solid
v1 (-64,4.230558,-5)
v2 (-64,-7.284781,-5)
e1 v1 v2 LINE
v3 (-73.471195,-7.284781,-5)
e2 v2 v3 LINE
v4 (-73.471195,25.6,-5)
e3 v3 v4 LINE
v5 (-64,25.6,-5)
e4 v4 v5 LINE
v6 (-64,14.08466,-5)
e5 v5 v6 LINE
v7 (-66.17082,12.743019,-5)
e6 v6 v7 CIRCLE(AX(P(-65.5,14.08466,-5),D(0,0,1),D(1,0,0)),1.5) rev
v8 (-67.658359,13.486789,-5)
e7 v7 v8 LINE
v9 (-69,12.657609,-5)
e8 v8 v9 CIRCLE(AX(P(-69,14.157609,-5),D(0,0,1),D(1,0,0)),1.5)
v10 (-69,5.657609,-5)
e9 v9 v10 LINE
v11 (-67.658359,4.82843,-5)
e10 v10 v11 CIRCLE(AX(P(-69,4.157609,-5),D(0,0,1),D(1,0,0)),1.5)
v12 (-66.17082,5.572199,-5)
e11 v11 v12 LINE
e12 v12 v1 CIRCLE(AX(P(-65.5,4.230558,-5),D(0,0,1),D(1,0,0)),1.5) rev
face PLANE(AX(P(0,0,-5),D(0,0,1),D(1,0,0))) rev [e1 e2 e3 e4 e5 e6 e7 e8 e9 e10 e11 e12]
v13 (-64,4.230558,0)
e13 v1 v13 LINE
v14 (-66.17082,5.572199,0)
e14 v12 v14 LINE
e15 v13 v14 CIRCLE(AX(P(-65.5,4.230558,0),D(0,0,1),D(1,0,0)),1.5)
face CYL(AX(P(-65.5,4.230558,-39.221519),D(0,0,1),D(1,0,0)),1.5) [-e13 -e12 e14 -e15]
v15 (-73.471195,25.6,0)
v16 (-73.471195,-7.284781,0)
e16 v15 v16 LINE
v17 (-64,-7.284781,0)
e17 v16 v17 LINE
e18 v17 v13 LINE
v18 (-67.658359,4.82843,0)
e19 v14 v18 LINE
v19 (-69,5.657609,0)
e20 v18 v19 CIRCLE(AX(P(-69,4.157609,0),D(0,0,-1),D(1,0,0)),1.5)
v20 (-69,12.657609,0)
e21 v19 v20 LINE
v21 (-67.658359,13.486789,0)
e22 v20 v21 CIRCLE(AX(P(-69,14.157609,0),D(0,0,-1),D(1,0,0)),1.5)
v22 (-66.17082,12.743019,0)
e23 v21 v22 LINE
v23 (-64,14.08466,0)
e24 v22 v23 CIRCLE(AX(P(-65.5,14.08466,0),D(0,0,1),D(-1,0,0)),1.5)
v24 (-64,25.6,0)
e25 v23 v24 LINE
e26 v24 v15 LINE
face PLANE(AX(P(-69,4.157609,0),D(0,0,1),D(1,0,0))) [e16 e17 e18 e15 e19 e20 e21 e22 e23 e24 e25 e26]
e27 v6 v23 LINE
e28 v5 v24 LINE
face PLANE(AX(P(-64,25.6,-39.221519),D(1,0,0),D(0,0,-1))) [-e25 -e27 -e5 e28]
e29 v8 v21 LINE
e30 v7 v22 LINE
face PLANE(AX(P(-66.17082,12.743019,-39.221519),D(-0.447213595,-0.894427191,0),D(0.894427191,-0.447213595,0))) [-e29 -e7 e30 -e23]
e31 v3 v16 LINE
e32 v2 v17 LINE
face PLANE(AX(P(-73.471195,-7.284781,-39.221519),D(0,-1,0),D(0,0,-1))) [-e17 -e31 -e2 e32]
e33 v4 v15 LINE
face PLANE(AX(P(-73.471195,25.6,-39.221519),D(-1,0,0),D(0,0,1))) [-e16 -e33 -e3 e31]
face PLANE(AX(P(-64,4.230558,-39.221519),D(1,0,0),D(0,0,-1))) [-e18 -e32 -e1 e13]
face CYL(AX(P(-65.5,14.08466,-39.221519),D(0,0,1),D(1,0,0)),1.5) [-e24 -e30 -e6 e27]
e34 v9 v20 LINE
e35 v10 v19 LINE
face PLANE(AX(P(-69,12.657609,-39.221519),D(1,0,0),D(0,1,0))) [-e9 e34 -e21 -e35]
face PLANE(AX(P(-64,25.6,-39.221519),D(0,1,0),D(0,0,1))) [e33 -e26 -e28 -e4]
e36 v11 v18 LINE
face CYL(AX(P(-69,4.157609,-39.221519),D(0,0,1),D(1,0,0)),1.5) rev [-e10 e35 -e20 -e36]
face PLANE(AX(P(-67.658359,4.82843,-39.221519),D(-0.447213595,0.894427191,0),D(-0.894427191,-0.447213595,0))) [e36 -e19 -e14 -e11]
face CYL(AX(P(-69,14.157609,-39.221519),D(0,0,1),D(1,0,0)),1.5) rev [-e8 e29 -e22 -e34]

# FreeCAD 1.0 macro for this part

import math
import FreeCAD as App
import Part
import Sketcher

doc = App.newDocument("Part")
body = doc.addObject("PartDesign::Body", "Body")

# Sketch on XY plane
sketch1 = body.newObject("Sketcher::SketchObject", "Sketch")
sketch1.AttachmentSupport = (doc.getObject("XY_Plane"), [""])
sketch1.MapMode = "FlatFace"
sketch1.addGeometry([
    Part.LineSegment(App.Vector(-64, 25.6, 0), App.Vector(-73.5, 25.6, 0)),  # 0
    Part.LineSegment(App.Vector(-73.5, 25.6, 0), App.Vector(-73.5, -7.3, 0)),  # 1
    Part.LineSegment(App.Vector(-73.5, -7.3, 0), App.Vector(-64, -7.3, 0)),  # 2
    Part.LineSegment(App.Vector(-64, -7.3, 0), App.Vector(-64, 4.2, 0)),  # 3
    Part.ArcOfCircle(Part.Circle(App.Vector(-65.5, 4.2, 0), App.Vector(0, 0, 1), 1.5), math.radians(0), math.radians(117)),  # 4
    Part.LineSegment(App.Vector(-66.2, 5.6, 0), App.Vector(-67.7, 4.8, 0)),  # 5
    Part.ArcOfCircle(Part.Circle(App.Vector(-69, 4.2, 0), App.Vector(0, 0, 1), 1.5), math.radians(90), math.radians(387)),  # 6
    Part.LineSegment(App.Vector(-69, 5.7, 0), App.Vector(-69, 12.7, 0)),  # 7
    Part.ArcOfCircle(Part.Circle(App.Vector(-69, 14.2, 0), App.Vector(0, 0, 1), 1.5), math.radians(-27), math.radians(270)),  # 8
    Part.LineSegment(App.Vector(-67.7, 13.5, 0), App.Vector(-66.2, 12.7, 0)),  # 9
    Part.ArcOfCircle(Part.Circle(App.Vector(-65.5, 14.1, 0), App.Vector(0, 0, 1), 1.5), math.radians(-117), math.radians(0)),  # 10
    Part.LineSegment(App.Vector(-64, 14.1, 0), App.Vector(-64, 25.6, 0)),  # 11
], False)
sketch1.addConstraint([
    Sketcher.Constraint("Coincident", 0, 2, 1, 1),
    Sketcher.Constraint("Coincident", 1, 2, 2, 1),
    Sketcher.Constraint("Coincident", 2, 2, 3, 1),
    Sketcher.Constraint("Tangent", 3, 2, 4, 1),
    Sketcher.Constraint("Tangent", 4, 2, 5, 1),
    Sketcher.Constraint("Coincident", 5, 2, 6, 2),
    Sketcher.Constraint("Coincident", 6, 1, 7, 1),
    Sketcher.Constraint("Coincident", 7, 2, 8, 2),
    Sketcher.Constraint("Coincident", 8, 1, 9, 1),
    Sketcher.Constraint("Tangent", 9, 2, 10, 1),
    Sketcher.Constraint("Tangent", 10, 2, 11, 1),
    Sketcher.Constraint("Coincident", 11, 2, 0, 1),
    Sketcher.Constraint("Horizontal", 0),
    Sketcher.Constraint("Vertical", 1),
    Sketcher.Constraint("Horizontal", 2),
    Sketcher.Constraint("Vertical", 3),
    Sketcher.Constraint("Vertical", 7),
    Sketcher.Constraint("Vertical", 11),
    Sketcher.Constraint("Equal", 4, 6),
    Sketcher.Constraint("Equal", 6, 8),
    Sketcher.Constraint("Equal", 8, 10),
    Sketcher.Constraint("Vertical", 6, 3, 8, 3),
    Sketcher.Constraint("Vertical", 4, 3, 10, 3),
    Sketcher.Constraint("Vertical", 8, 3, 6, 1),
    Sketcher.Constraint("Vertical", 5, 2, 8, 1),
    Sketcher.Constraint("Vertical", 4, 2, 9, 2),
    Sketcher.Constraint("Equal", 3, 11),
    Sketcher.Constraint("Radius", 4, 1.5),
    Sketcher.Constraint("DistanceY", 7, 1, 7, 2, 7.0),
    Sketcher.Constraint("DistanceX", 6, 3, -1, 1, 69.0),
    Sketcher.Constraint("DistanceX", 2, 2, -1, 1, 64.0),
    Sketcher.Constraint("DistanceY", -1, 1, 0, 2, 25.6),
    Sketcher.Constraint("DistanceY", 1, 2, 1, 1, 32.884781),
    Sketcher.Constraint("DistanceY", 3, 1, 3, 2, 11.51534),
    Sketcher.Constraint("DistanceY", -1, 1, 4, 2, 5.572199),
    Sketcher.Constraint("DistanceX", 0, 2, 0, 1, 9.471195),
])
pad1 = body.newObject("PartDesign::Pad", "Pad")
pad1.Profile = sketch1
pad1.Length = 5
pad1.Reversed = True

doc.recompute()
